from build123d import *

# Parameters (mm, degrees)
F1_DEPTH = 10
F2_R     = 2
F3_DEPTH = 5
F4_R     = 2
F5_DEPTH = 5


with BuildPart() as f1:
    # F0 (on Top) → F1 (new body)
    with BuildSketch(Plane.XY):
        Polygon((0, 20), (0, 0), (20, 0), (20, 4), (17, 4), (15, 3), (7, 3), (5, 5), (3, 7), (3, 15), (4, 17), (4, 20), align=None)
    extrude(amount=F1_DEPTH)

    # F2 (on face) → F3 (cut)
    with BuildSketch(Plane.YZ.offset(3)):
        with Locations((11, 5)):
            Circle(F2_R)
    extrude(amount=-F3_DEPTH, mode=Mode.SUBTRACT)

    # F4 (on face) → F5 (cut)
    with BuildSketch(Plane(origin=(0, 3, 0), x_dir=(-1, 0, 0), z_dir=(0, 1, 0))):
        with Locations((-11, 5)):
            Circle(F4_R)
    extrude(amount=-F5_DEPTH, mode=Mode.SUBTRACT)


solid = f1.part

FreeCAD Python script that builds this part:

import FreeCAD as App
import Part
import Sketcher
from FreeCAD import Vector
Q = App.Units.Quantity


def add_polygon(sketch, points):
    """Adds a closed chain of lines whose ends are joined by coincident constraints."""
    first, n = sketch.GeometryCount, len(points)
    for a, b in zip(points, points[1:] + points[:1]):
        sketch.addGeometry(Part.LineSegment(App.Vector(*a, 0), App.Vector(*b, 0)), False)
    for i in range(n):
        sketch.addConstraint(Sketcher.Constraint("Coincident", first + i, 2, first + (i + 1) % n, 1))

doc = App.newDocument("Part")
body = doc.addObject("PartDesign::Body", "Body")

sketch1 = body.newObject("Sketcher::SketchObject", "Sketch")
sketch1.AttachmentSupport = (doc.getObject("XY_Plane"), [""])
sketch1.MapMode = "FlatFace"
add_polygon(sketch1, [(0, 20), (0, 0), (20, 0), (20, 4), (17, 4), (15, 3), (7, 3), (3, 7), (3, 15), (4, 17), (4, 20)])
sketch1.addConstraint([
    Sketcher.Constraint("Vertical", 0),
    Sketcher.Constraint("Horizontal", 1),
    Sketcher.Constraint("Vertical", 2),
    Sketcher.Constraint("Horizontal", 3),
    Sketcher.Constraint("Horizontal", 5),
    Sketcher.Constraint("Vertical", 7),
    Sketcher.Constraint("Vertical", 9),
    Sketcher.Constraint("Horizontal", 10),
    Sketcher.Constraint("Coincident", 0, 2, -1, 1),
    Sketcher.Constraint("Equal", 1, 0),
    Sketcher.Constraint("Equal", 10, 2),
    Sketcher.Constraint("Equal", 5, 7),
    Sketcher.Constraint("Equal", 3, 9),
    Sketcher.Constraint("Equal", 4, 8),
    Sketcher.Constraint("DistanceX", 1, 1, 1, 2, Q("20 mm")),
    Sketcher.Constraint("DistanceX", 3, 2, 3, 1, Q("3 mm")),
    Sketcher.Constraint("DistanceX", 5, 2, 5, 1, Q("8 mm")),
    Sketcher.Constraint("DistanceX", 10, 2, 10, 1, Q("4 mm")),
    Sketcher.Constraint("Angle", 6, Q("135 deg")),
    Sketcher.Constraint("DistanceX", -1, 1, 4, 2, Q("15 mm")),
    Sketcher.Constraint("DistanceY", -1, 1, 4, 2, Q("3 mm")),
])
pad1 = body.newObject("PartDesign::Pad", "Pad")
pad1.Profile = sketch1
pad1.Length = 10

sketch2 = body.newObject("Sketcher::SketchObject", "Sketch001")
sketch2.AttachmentSupport = (doc.getObject("YZ_Plane"), [""])
sketch2.MapMode = "FlatFace"
sketch2.AttachmentOffset = App.Placement(Vector(0, 0, 3), App.Rotation())
sketch2.addGeometry(Part.Circle(Vector(11, 5, 0), Vector(0, 0, 1), 2), False)
sketch2.addConstraint([
    Sketcher.Constraint("Diameter", 0, Q("4 mm")),
    Sketcher.Constraint("DistanceX", -1, 1, 0, 3, Q("11 mm")),
    Sketcher.Constraint("DistanceY", -1, 1, 0, 3, Q("5 mm")),
])
pocket1 = body.newObject("PartDesign::Pocket", "Pocket")
pocket1.Profile = sketch2
pocket1.Length = 5

sketch3 = body.newObject("Sketcher::SketchObject", "Sketch002")
sketch3.AttachmentSupport = (doc.getObject("XZ_Plane"), [""])
sketch3.MapMode = "FlatFace"
sketch3.AttachmentOffset = App.Placement(Vector(0, 0, -3), App.Rotation())
sketch3.addGeometry(Part.Circle(Vector(11, 5, 0), Vector(0, 0, 1), 2), False)
sketch3.addConstraint([
    Sketcher.Constraint("Diameter", 0, Q("4 mm")),
    Sketcher.Constraint("DistanceX", -1, 1, 0, 3, Q("11 mm")),
    Sketcher.Constraint("DistanceY", -1, 1, 0, 3, Q("5 mm")),
])
pocket2 = body.newObject("PartDesign::Pocket", "Pocket001")
pocket2.Profile = sketch3
pocket2.Length = 5
pocket2.Reversed = True

doc.recompute()
